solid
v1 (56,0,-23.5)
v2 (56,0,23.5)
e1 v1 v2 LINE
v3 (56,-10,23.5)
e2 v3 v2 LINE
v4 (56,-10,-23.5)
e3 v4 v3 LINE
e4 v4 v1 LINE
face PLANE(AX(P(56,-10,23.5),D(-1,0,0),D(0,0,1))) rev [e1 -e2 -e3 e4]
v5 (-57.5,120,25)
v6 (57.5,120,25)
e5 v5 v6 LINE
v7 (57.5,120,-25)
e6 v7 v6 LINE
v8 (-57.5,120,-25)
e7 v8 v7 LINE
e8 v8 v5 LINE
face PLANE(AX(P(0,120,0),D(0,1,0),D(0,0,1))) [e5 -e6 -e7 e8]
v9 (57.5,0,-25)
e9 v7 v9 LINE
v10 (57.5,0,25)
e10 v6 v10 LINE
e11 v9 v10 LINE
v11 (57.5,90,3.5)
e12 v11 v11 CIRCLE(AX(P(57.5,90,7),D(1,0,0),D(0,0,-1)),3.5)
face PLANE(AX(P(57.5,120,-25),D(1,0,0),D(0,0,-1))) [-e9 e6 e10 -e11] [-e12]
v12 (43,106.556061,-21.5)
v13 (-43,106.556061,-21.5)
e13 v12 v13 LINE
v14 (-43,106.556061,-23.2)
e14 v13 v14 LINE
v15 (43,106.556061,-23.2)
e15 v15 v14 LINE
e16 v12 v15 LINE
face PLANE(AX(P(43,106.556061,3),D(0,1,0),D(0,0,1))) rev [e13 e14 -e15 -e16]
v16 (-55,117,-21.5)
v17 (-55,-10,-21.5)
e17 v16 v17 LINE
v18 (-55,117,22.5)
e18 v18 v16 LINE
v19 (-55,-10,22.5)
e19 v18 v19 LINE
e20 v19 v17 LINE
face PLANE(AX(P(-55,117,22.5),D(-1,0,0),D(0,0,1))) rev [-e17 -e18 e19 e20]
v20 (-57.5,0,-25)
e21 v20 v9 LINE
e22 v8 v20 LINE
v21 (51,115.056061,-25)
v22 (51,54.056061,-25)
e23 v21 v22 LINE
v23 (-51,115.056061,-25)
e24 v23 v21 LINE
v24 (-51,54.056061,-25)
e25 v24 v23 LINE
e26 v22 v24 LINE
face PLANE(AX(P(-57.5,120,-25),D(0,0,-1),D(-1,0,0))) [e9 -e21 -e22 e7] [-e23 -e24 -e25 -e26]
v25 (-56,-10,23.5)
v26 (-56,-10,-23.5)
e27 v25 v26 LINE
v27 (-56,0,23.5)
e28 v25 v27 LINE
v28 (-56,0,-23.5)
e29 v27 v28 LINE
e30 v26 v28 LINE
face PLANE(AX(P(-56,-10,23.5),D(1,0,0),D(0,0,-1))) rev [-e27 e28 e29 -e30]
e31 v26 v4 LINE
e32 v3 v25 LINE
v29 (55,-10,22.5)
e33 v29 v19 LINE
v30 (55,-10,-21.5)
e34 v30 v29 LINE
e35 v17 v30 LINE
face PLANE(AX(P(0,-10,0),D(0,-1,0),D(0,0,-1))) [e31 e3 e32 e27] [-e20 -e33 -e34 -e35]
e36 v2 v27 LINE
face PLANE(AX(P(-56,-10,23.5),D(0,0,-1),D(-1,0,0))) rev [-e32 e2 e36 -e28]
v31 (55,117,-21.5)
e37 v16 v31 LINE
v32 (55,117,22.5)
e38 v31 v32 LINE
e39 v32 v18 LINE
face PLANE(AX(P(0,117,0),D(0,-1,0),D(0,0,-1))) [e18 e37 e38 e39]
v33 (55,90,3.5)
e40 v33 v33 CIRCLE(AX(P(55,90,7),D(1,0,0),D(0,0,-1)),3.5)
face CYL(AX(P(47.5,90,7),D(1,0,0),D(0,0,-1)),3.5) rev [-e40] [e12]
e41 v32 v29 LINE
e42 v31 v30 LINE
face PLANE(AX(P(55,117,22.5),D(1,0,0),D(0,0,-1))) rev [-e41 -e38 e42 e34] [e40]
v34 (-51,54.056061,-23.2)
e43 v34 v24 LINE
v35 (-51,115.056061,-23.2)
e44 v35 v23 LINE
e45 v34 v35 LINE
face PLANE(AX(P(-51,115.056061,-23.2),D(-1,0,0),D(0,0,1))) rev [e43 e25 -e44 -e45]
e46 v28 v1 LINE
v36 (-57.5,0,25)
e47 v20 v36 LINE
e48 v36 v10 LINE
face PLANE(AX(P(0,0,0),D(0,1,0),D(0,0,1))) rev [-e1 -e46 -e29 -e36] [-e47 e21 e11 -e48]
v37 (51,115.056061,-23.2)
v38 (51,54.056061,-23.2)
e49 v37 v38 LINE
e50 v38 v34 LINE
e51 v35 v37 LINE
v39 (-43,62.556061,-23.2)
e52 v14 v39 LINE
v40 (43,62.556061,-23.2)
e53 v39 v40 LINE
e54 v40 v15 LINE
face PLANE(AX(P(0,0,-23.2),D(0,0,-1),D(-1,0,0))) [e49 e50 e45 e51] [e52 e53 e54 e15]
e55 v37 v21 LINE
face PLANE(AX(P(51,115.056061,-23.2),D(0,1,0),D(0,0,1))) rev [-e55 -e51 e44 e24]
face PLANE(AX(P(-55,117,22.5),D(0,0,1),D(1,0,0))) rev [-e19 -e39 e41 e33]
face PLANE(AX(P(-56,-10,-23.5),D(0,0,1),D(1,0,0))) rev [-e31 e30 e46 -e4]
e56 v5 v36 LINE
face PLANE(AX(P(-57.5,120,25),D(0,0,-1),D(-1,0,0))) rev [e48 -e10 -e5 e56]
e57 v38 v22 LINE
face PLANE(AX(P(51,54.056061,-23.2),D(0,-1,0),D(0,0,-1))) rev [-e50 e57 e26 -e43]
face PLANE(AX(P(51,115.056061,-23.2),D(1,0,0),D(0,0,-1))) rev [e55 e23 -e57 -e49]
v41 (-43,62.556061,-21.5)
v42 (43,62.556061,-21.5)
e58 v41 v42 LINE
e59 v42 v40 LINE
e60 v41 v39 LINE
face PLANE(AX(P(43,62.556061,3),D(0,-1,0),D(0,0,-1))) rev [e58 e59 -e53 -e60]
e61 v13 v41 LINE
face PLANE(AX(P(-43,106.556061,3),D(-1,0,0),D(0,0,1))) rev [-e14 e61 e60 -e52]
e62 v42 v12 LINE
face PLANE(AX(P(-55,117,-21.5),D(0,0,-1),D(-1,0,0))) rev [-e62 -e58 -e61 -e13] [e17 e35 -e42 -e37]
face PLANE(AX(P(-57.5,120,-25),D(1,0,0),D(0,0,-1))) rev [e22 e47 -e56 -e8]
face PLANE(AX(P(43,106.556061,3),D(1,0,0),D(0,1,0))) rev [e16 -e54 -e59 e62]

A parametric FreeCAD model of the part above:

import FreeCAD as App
import Part
import Sketcher
from FreeCAD import Vector
Q = App.Units.Quantity

doc = App.newDocument("Part")
body = doc.addObject("PartDesign::Body", "Body")

sketch1 = doc.addObject("Sketcher::SketchObject", "Sketch")
body.addObject(sketch1)
sketch1.AttachmentSupport = (doc.XZ_Plane, [""])
sketch1.MapMode = "FlatFace"
sketch1.addGeometry([
    Part.LineSegment(Vector(-58, -25, 0), Vector(-58, 25, 0)),
    Part.LineSegment(Vector(-58, 25, 0), Vector(58, 25, 0)),
    Part.LineSegment(Vector(58, 25, 0), Vector(58, -25, 0)),
    Part.LineSegment(Vector(58, -25, 0), Vector(-58, -25, 0)),
], False)
sketch1.addConstraint([
    Sketcher.Constraint("Coincident", 0, 2, 1, 1),
    Sketcher.Constraint("Coincident", 1, 2, 2, 1),
    Sketcher.Constraint("Coincident", 2, 2, 3, 1),
    Sketcher.Constraint("Coincident", 3, 2, 0, 1),
    Sketcher.Constraint("Vertical", 0),
    Sketcher.Constraint("Horizontal", 1),
    Sketcher.Constraint("Vertical", 2),
    Sketcher.Constraint("Horizontal", 3),
    Sketcher.Constraint("Symmetric", 0, 2, 2, 2, -1, 1),
    Sketcher.Constraint("DistanceX", 1, 1, 1, 2, Q("115 mm")),
    Sketcher.Constraint("DistanceY", 0, 1, 0, 2, Q("50 mm")),
])
pad1 = doc.addObject("PartDesign::Pad", "Pad")
body.addObject(pad1)
pad1.Profile = sketch1
pad1.Length = 120
pad1.Reversed = True

sketch2 = doc.addObject("Sketcher::SketchObject", "Sketch001")
body.addObject(sketch2)
sketch2.AttachmentSupport = (doc.XY_Plane, [""])
sketch2.MapMode = "FlatFace"
sketch2.AttachmentOffset = App.Placement(Vector(0, 0, -25), App.Rotation())
sketch2.addGeometry([
    Part.LineSegment(Vector(43, 107, 0), Vector(43, 63, 0)),
    Part.LineSegment(Vector(43, 63, 0), Vector(-43, 63, 0)),
    Part.LineSegment(Vector(-43, 63, 0), Vector(-43, 107, 0)),
    Part.LineSegment(Vector(-43, 107, 0), Vector(43, 107, 0)),
], False)
sketch2.addConstraint([
    Sketcher.Constraint("Coincident", 0, 2, 1, 1),
    Sketcher.Constraint("Coincident", 1, 2, 2, 1),
    Sketcher.Constraint("Coincident", 2, 2, 3, 1),
    Sketcher.Constraint("Coincident", 3, 2, 0, 1),
    Sketcher.Constraint("Vertical", 0),
    Sketcher.Constraint("Horizontal", 1),
    Sketcher.Constraint("Vertical", 2),
    Sketcher.Constraint("Horizontal", 3),
    Sketcher.Constraint("DistanceX", 1, 2, 1, 1, Q("86 mm")),
    Sketcher.Constraint("DistanceY", 0, 2, 0, 1, Q("44 mm")),
    Sketcher.Constraint("DistanceX", -1, 1, 0, 2, Q("43 mm")),
    Sketcher.Constraint("DistanceY", -1, 1, 0, 2, Q("62.556061 mm")),
])
pocket1 = doc.addObject("PartDesign::Pocket", "Pocket")
body.addObject(pocket1)
pocket1.Profile = sketch2
pocket1.Length = 28
pocket1.Reversed = True

sketch3 = doc.addObject("Sketcher::SketchObject", "Sketch002")
body.addObject(sketch3)
sketch3.AttachmentSupport = (doc.XY_Plane, [""])
sketch3.MapMode = "FlatFace"
sketch3.AttachmentOffset = App.Placement(Vector(0, 0, -25), App.Rotation())
sketch3.addGeometry([
    Part.LineSegment(Vector(51, 115, 0), Vector(51, 54, 0)),
    Part.LineSegment(Vector(51, 54, 0), Vector(-51, 54, 0)),
    Part.LineSegment(Vector(-51, 54, 0), Vector(-51, 115, 0)),
    Part.LineSegment(Vector(-51, 115, 0), Vector(51, 115, 0)),
], False)
sketch3.addConstraint([
    Sketcher.Constraint("Coincident", 0, 2, 1, 1),
    Sketcher.Constraint("Coincident", 1, 2, 2, 1),
    Sketcher.Constraint("Coincident", 2, 2, 3, 1),
    Sketcher.Constraint("Coincident", 3, 2, 0, 1),
    Sketcher.Constraint("Vertical", 0),
    Sketcher.Constraint("Horizontal", 1),
    Sketcher.Constraint("Vertical", 2),
    Sketcher.Constraint("Horizontal", 3),
    Sketcher.Constraint("DistanceX", 1, 2, 1, 1, Q("102 mm")),
    Sketcher.Constraint("DistanceY", 0, 2, 0, 1, Q("61 mm")),
    Sketcher.Constraint("DistanceX", -1, 1, 0, 2, Q("51 mm")),
    Sketcher.Constraint("DistanceY", -1, 1, 0, 2, Q("54.056061 mm")),
])
pocket2 = doc.addObject("PartDesign::Pocket", "Pocket001")
body.addObject(pocket2)
pocket2.Profile = sketch3
pocket2.Length = 1.8
pocket2.Reversed = True

sketch4 = doc.addObject("Sketcher::SketchObject", "Sketch003")
body.addObject(sketch4)
sketch4.AttachmentSupport = (doc.XZ_Plane, [""])
sketch4.MapMode = "FlatFace"
sketch4.addGeometry([
    Part.LineSegment(Vector(-56, 24, 0), Vector(-56, -24, 0)),
    Part.LineSegment(Vector(-56, -24, 0), Vector(56, -24, 0)),
    Part.LineSegment(Vector(56, -24, 0), Vector(56, 24, 0)),
    Part.LineSegment(Vector(56, 24, 0), Vector(-56, 24, 0)),
], False)
sketch4.addConstraint([
    Sketcher.Constraint("Coincident", 0, 2, 1, 1),
    Sketcher.Constraint("Coincident", 1, 2, 2, 1),
    Sketcher.Constraint("Coincident", 2, 2, 3, 1),
    Sketcher.Constraint("Coincident", 3, 2, 0, 1),
    Sketcher.Constraint("Vertical", 0),
    Sketcher.Constraint("Horizontal", 1),
    Sketcher.Constraint("Vertical", 2),
    Sketcher.Constraint("Horizontal", 3),
    Sketcher.Constraint("Symmetric", 0, 2, 2, 2, -1, 1),
    Sketcher.Constraint("DistanceX", 1, 1, 1, 2, Q("112 mm")),
    Sketcher.Constraint("DistanceY", 0, 2, 0, 1, Q("47 mm")),
])
pad2 = doc.addObject("PartDesign::Pad", "Pad001")
body.addObject(pad2)
pad2.Profile = sketch4
pad2.Length = 10

sketch5 = doc.addObject("Sketcher::SketchObject", "Sketch004")
body.addObject(sketch5)
sketch5.AttachmentSupport = (doc.XZ_Plane, [""])
sketch5.MapMode = "FlatFace"
sketch5.AttachmentOffset = App.Placement(Vector(0, 0, 10), App.Rotation())
sketch5.addGeometry([
    Part.LineSegment(Vector(-55, 22, 0), Vector(-55, -22, 0)),
    Part.LineSegment(Vector(-55, -22, 0), Vector(55, -22, 0)),
    Part.LineSegment(Vector(55, -22, 0), Vector(55, 22, 0)),
    Part.LineSegment(Vector(55, 22, 0), Vector(-55, 22, 0)),
], False)
sketch5.addConstraint([
    Sketcher.Constraint("Coincident", 0, 2, 1, 1),
    Sketcher.Constraint("Coincident", 1, 2, 2, 1),
    Sketcher.Constraint("Coincident", 2, 2, 3, 1),
    Sketcher.Constraint("Coincident", 3, 2, 0, 1),
    Sketcher.Constraint("Vertical", 0),
    Sketcher.Constraint("Horizontal", 1),
    Sketcher.Constraint("Vertical", 2),
    Sketcher.Constraint("Horizontal", 3),
    Sketcher.Constraint("DistanceX", 1, 1, 1, 2, Q("110 mm")),
    Sketcher.Constraint("DistanceY", 0, 2, 0, 1, Q("44 mm")),
    Sketcher.Constraint("DistanceX", 0, 2, -1, 1, Q("55 mm")),
    Sketcher.Constraint("DistanceY", 0, 2, -1, 1, Q("21.5 mm")),
])
pocket3 = doc.addObject("PartDesign::Pocket", "Pocket002")
body.addObject(pocket3)
pocket3.Profile = sketch5
pocket3.Length = 127

sketch6 = doc.addObject("Sketcher::SketchObject", "Sketch005")
body.addObject(sketch6)
sketch6.AttachmentSupport = (doc.YZ_Plane, [""])
sketch6.MapMode = "FlatFace"
sketch6.AttachmentOffset = App.Placement(Vector(0, 0, 57.5), App.Rotation())
sketch6.addGeometry(Part.Circle(Vector(90, 7, 0), Vector(0, 0, 1), 3.5), False)
sketch6.addConstraint([
    Sketcher.Constraint("Diameter", 0, Q("7 mm")),
    Sketcher.Constraint("DistanceX", -1, 1, 0, 3, Q("90 mm")),
    Sketcher.Constraint("DistanceY", -1, 1, 0, 3, Q("7 mm")),
])
pocket4 = doc.addObject("PartDesign::Pocket", "Pocket003")
body.addObject(pocket4)
pocket4.Profile = sketch6
pocket4.Length = 10

doc.recompute()
